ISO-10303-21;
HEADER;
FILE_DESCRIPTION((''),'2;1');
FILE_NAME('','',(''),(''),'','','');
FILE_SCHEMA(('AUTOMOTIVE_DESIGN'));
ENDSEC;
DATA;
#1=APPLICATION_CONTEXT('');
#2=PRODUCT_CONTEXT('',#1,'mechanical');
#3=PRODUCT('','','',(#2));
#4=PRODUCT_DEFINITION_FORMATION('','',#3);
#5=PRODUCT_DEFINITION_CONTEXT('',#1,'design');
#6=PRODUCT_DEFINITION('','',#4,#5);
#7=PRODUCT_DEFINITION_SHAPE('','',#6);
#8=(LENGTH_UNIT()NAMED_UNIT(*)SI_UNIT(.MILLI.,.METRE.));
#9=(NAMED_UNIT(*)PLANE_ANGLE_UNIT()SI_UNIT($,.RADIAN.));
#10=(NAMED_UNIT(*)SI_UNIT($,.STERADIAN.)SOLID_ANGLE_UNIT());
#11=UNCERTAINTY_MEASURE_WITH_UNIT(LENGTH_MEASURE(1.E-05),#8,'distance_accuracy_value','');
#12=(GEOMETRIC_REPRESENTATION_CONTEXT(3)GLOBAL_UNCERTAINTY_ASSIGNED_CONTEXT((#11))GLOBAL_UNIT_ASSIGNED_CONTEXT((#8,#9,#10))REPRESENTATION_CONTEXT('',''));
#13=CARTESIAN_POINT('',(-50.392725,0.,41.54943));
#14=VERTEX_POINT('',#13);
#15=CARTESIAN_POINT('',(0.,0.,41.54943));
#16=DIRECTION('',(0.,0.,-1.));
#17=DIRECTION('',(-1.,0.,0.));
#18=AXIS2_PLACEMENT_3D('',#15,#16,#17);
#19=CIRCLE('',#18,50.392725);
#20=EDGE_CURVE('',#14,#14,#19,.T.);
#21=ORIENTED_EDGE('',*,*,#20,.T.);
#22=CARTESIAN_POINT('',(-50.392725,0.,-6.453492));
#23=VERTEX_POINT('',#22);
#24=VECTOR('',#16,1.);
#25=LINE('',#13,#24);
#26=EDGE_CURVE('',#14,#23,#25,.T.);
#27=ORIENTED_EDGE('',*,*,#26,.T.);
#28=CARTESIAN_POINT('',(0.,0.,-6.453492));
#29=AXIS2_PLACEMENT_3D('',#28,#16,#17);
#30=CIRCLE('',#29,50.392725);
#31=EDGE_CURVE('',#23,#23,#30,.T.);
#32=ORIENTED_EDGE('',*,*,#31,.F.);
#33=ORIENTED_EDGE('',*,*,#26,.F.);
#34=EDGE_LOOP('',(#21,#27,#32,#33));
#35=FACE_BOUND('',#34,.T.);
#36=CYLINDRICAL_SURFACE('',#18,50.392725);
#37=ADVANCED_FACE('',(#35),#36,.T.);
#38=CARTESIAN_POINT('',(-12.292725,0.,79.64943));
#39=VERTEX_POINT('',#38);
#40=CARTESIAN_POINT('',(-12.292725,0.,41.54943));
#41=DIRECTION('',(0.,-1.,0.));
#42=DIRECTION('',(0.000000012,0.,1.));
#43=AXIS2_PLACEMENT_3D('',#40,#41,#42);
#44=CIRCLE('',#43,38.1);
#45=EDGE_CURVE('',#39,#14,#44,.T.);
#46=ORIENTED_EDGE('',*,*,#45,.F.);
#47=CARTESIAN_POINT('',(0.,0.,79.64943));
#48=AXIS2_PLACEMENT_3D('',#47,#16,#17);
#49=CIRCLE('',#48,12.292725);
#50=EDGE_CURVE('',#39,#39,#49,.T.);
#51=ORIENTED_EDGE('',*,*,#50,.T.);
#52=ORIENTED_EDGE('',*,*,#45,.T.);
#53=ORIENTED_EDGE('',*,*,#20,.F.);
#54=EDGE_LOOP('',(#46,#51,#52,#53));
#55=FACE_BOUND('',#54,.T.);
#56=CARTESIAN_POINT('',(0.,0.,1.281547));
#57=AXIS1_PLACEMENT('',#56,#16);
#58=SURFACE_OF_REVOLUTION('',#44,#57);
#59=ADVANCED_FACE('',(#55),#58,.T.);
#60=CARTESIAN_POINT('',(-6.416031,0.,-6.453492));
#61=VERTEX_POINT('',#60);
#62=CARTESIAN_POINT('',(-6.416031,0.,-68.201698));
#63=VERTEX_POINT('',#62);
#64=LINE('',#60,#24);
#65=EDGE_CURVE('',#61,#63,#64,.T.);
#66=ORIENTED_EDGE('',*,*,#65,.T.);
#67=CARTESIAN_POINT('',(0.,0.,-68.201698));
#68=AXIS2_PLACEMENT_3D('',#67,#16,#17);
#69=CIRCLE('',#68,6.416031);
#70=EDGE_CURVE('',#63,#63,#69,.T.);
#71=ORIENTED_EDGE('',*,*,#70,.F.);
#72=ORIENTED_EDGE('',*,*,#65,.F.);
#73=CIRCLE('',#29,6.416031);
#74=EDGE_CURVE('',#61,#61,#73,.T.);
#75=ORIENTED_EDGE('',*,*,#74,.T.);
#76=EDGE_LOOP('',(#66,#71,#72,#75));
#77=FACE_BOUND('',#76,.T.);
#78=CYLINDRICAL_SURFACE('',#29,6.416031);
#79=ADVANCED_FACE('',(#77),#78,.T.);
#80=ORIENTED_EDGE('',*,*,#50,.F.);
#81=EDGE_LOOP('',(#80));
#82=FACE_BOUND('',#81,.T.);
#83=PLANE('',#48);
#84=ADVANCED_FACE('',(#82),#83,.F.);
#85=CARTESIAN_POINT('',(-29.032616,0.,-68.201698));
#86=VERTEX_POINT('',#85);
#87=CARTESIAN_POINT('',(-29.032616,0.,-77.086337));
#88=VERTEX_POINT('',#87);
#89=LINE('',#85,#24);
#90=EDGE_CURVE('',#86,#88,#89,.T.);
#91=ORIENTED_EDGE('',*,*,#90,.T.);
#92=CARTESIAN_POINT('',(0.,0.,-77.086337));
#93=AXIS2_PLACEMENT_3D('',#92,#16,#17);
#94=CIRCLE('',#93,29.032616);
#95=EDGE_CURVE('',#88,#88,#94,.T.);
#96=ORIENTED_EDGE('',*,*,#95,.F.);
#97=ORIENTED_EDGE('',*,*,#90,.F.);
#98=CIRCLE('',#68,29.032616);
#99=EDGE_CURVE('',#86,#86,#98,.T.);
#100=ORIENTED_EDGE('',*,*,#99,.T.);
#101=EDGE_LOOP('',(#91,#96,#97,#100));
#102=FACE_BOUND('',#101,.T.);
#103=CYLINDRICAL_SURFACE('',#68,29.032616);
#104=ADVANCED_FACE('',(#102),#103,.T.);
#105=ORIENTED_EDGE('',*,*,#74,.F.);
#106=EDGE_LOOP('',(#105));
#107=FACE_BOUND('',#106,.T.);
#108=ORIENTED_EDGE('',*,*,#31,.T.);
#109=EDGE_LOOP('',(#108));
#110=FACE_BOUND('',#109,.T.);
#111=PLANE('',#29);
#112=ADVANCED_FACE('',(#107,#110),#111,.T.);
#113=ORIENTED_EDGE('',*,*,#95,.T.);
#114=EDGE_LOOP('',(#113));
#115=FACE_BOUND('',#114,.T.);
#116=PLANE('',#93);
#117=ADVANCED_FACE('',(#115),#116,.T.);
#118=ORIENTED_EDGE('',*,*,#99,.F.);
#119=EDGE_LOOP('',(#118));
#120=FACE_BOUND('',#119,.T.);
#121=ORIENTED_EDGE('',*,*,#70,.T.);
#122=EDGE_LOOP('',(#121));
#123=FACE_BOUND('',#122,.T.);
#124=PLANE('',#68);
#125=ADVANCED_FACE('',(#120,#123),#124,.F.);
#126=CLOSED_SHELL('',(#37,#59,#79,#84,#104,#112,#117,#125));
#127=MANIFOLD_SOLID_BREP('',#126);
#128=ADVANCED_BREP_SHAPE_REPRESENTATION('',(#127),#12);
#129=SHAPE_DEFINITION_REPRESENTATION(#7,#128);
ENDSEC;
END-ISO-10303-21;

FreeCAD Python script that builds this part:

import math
import FreeCAD as App
import Part
import Sketcher

V = App.Vector
Q = App.Units.Quantity

doc = App.newDocument("Part")
body = doc.addObject("PartDesign::Body", "Body")

sketch1 = body.newObject("Sketcher::SketchObject", "Sketch")
sketch1.AttachmentSupport = (doc.getObject("XZ_Plane"), [""])
sketch1.MapMode = "FlatFace"
sketch1.addGeometry([
    Part.LineSegment(V(-29.032616, -77.086337, 0), V(0, -77.086337, 0)),
    Part.LineSegment(V(0, -77.086337, 0), V(0, 79.64943, 0)),
    Part.LineSegment(V(0, 79.64943, 0), V(-12.292725, 79.64943, 0)),
    Part.ArcOfCircle(Part.Circle(V(-12.292725, 41.54943, 0), V(0, 0, 1), 38.1), math.radians(89.999999), math.radians(180.000001)),
    Part.LineSegment(V(-50.392725, 41.54943, 0), V(-50.392725, -6.453492, 0)),
    Part.LineSegment(V(-50.392725, -6.453492, 0), V(-6.416031, -6.453492, 0)),
    Part.LineSegment(V(-6.416031, -6.453492, 0), V(-6.416031, -68.201698, 0)),
    Part.LineSegment(V(-6.416031, -68.201698, 0), V(-29.032616, -68.201698, 0)),
    Part.LineSegment(V(-29.032616, -68.201698, 0), V(-29.032616, -77.086337, 0)),
], False)
sketch1.addConstraint([
    Sketcher.Constraint("Coincident", 0, 2, 1, 1),
    Sketcher.Constraint("Coincident", 1, 2, 2, 1),
    Sketcher.Constraint("Tangent", 2, 2, 3, 1),
    Sketcher.Constraint("Tangent", 3, 2, 4, 1),
    Sketcher.Constraint("Coincident", 4, 2, 5, 1),
    Sketcher.Constraint("Coincident", 5, 2, 6, 1),
    Sketcher.Constraint("Coincident", 6, 2, 7, 1),
    Sketcher.Constraint("Coincident", 7, 2, 8, 1),
    Sketcher.Constraint("Coincident", 8, 2, 0, 1),
    Sketcher.Constraint("Horizontal", 0),
    Sketcher.Constraint("Vertical", 1),
    Sketcher.Constraint("Horizontal", 2),
    Sketcher.Constraint("Vertical", 4),
    Sketcher.Constraint("Horizontal", 5),
    Sketcher.Constraint("Vertical", 6),
    Sketcher.Constraint("Horizontal", 7),
    Sketcher.Constraint("Vertical", 8),
    Sketcher.Constraint("PointOnObject", 0, 2, -2),
    Sketcher.Constraint("Radius", 3, Q("1.5 in")),
    Sketcher.Constraint("DistanceY", 4, 2, 4, 1, Q("48.002922 mm")),
    Sketcher.Constraint("DistanceY", 8, 2, 8, 1, Q("8.884639 mm")),
    Sketcher.Constraint("DistanceX", 0, 1, 0, 2, Q("29.032616 mm")),
    Sketcher.Constraint("DistanceX", 2, 2, 2, 1, Q("12.292725 mm")),
    Sketcher.Constraint("DistanceX", 5, 1, 5, 2, Q("43.976694 mm")),
    Sketcher.Constraint("DistanceY", 1, 1, 1, 2, Q("156.735767 mm")),
    Sketcher.Constraint("DistanceY", -1, 1, 3, 3, Q("41.54943 mm")),
])
revolution = body.newObject("PartDesign::Revolution", "Revolution")
revolution.Profile = sketch1
revolution.ReferenceAxis = (sketch1, ["V_Axis"])
revolution.Angle = 360

doc.recompute()
